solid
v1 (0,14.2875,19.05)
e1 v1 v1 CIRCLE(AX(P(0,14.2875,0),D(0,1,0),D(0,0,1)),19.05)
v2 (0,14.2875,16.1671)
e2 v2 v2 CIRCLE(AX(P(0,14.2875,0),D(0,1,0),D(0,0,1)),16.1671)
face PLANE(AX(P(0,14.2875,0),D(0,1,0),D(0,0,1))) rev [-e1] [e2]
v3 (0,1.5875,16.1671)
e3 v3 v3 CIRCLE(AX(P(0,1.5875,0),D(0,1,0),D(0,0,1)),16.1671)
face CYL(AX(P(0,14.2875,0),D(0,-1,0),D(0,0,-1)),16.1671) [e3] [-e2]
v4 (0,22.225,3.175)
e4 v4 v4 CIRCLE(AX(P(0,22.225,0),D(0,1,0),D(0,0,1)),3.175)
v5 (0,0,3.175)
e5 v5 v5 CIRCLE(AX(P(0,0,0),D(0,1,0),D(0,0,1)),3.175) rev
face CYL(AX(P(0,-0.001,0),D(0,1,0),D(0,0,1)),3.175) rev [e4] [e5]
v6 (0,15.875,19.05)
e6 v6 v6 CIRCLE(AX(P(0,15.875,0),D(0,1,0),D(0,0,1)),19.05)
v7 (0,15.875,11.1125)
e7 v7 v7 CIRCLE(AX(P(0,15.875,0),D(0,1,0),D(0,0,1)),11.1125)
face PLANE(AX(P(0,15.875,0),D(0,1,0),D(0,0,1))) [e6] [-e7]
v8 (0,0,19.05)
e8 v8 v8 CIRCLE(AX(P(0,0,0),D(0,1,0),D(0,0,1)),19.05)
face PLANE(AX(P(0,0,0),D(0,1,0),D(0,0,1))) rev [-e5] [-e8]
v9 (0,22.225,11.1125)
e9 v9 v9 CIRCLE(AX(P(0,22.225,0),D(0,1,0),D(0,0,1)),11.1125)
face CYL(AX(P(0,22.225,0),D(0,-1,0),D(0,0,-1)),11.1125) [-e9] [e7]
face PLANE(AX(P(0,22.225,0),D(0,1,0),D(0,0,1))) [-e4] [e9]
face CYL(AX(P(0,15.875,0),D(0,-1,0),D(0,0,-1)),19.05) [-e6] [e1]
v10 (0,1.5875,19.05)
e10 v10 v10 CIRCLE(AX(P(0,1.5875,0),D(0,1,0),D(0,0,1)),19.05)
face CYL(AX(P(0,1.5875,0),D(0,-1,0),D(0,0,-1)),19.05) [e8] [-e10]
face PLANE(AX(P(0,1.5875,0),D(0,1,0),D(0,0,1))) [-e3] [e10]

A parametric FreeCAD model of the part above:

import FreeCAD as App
import Part
import Sketcher

V = App.Vector
Q = App.Units.Quantity

doc = App.newDocument("Part")
body = doc.addObject("PartDesign::Body", "Body")

sketch1 = body.newObject("Sketcher::SketchObject", "Sketch")
sketch1.AttachmentSupport = (doc.getObject("XZ_Plane"), [""])
sketch1.MapMode = "FlatFace"
sketch1.addGeometry(Part.Circle(V(0, 0, 0), V(0, 0, 1), 19), False)
sketch1.addConstraint(Sketcher.Constraint("Coincident", 0, 3, -1, 1))
sketch1.addConstraint(Sketcher.Constraint("Diameter", 0, Q("1.5 in")))
pad1 = body.newObject("PartDesign::Pad", "Pad")
pad1.Profile = sketch1
pad1.Length = Q("0.0625 in")
pad1.Reversed = True

sketch2 = body.newObject("Sketcher::SketchObject", "Sketch001")
sketch2.AttachmentSupport = (doc.getObject("XZ_Plane"), [""])
sketch2.MapMode = "FlatFace"
sketch2.AttachmentOffset = App.Placement(V(0, 0, -0.0625 * 25.4), App.Rotation())
sketch2.addGeometry(Part.Circle(V(0, 0, 0), V(0, 0, 1), 16), False)
sketch2.addConstraint(Sketcher.Constraint("Coincident", 0, 3, -1, 1))
sketch2.addConstraint(Sketcher.Constraint("Diameter", 0, Q("1.273 in")))
pad2 = body.newObject("PartDesign::Pad", "Pad001")
pad2.Profile = sketch2
pad2.Length = Q("0.5 in")
pad2.Reversed = True

sketch3 = body.newObject("Sketcher::SketchObject", "Sketch002")
sketch3.AttachmentSupport = (doc.getObject("XZ_Plane"), [""])
sketch3.MapMode = "FlatFace"
sketch3.AttachmentOffset = App.Placement(V(0, 0, -0.5625 * 25.4), App.Rotation())
sketch3.addGeometry(Part.Circle(V(0, 0, 0), V(0, 0, 1), 19), False)
sketch3.addConstraint(Sketcher.Constraint("Coincident", 0, 3, -1, 1))
sketch3.addConstraint(Sketcher.Constraint("Diameter", 0, Q("1.5 in")))
pad3 = body.newObject("PartDesign::Pad", "Pad002")
pad3.Profile = sketch3
pad3.Length = Q("0.0625 in")
pad3.Reversed = True

sketch4 = body.newObject("Sketcher::SketchObject", "Sketch003")
sketch4.AttachmentSupport = (doc.getObject("XZ_Plane"), [""])
sketch4.MapMode = "FlatFace"
sketch4.AttachmentOffset = App.Placement(V(0, 0, -0.625 * 25.4), App.Rotation())
sketch4.addGeometry(Part.Circle(V(0, 0, 0), V(0, 0, 1), 11), False)
sketch4.addConstraint(Sketcher.Constraint("Coincident", 0, 3, -1, 1))
sketch4.addConstraint(Sketcher.Constraint("Diameter", 0, Q("0.875 in")))
pad4 = body.newObject("PartDesign::Pad", "Pad003")
pad4.Profile = sketch4
pad4.Length = Q("0.25 in")
pad4.Reversed = True

sketch5 = body.newObject("Sketcher::SketchObject", "Sketch004")
sketch5.AttachmentSupport = (doc.getObject("XZ_Plane"), [""])
sketch5.MapMode = "FlatFace"
sketch5.AttachmentOffset = App.Placement(V(0, 0, -0.875 * 25.4), App.Rotation())
sketch5.addGeometry(Part.Circle(V(0, 0, 0), V(0, 0, 1), 3.2), False)
sketch5.addConstraint(Sketcher.Constraint("Coincident", 0, 3, -1, 1))
sketch5.addConstraint(Sketcher.Constraint("Diameter", 0, Q("0.25 in")))
pocket1 = body.newObject("PartDesign::Pocket", "Pocket")
pocket1.Profile = sketch5
pocket1.Type = "UpToFirst"
pocket1.Reversed = True

doc.recompute()
